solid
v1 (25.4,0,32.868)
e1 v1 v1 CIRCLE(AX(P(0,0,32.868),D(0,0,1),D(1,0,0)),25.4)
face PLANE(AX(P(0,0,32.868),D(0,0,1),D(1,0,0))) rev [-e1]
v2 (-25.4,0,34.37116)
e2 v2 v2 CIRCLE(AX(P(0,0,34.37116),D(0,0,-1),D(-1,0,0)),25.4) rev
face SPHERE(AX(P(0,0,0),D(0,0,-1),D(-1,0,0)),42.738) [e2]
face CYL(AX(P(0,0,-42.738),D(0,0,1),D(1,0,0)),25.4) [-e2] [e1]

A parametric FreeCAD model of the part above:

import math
import FreeCAD as App
import Part
import Sketcher
from FreeCAD import Vector
Q = App.Units.Quantity

doc = App.newDocument("Part")
params = doc.addObject("Spreadsheet::Sheet", "Params")
for row, (alias, value) in enumerate([
    ("revolution_angle", "360 deg"),
    ("sketch2_diameter", "2 in"),
    ("sketch3_diameter", "2 in"),
], start=1):
    params.set(f"A{row}", alias)
    params.set(f"B{row}", "=" + value)
    params.setAlias(f"B{row}", alias)

body = doc.addObject("PartDesign::Body", "Body")

# Sketch on XY plane
sketch1 = body.newObject("Sketcher::SketchObject", "Sketch")
sketch1.AttachmentSupport = (doc.getObject("XY_Plane"), [""])
sketch1.MapMode = "FlatFace"
sketch1.addGeometry([
    Part.LineSegment(Vector(0, -43, 0), Vector(0, 43, 0)),
    Part.ArcOfCircle(Part.Circle(Vector(0, 0, 0), Vector(0, 0, 1), 43), math.radians(90), math.radians(270)),
], False)
sketch1.addConstraint([
    Sketcher.Constraint("Coincident", 0, 1, 1, 2),
    Sketcher.Constraint("Coincident", 1, 1, 0, 2),
    Sketcher.Constraint("Vertical", 0),
    Sketcher.Constraint("Coincident", 1, 3, -1, 1),
    Sketcher.Constraint("PointOnObject", 0, 1, -2),
    Sketcher.Constraint("Radius", 1, Q("42.738 mm")),
])
revolution = body.newObject("PartDesign::Revolution", "Revolution")
revolution.Profile = sketch1
revolution.ReferenceAxis = (sketch1, ["V_Axis"])
revolution.setExpression("Angle", "Params.revolution_angle")

# Sketch on XY plane
sketch2 = body.newObject("Sketcher::SketchObject", "Sketch001")
sketch2.AttachmentSupport = (doc.getObject("XY_Plane"), [""])
sketch2.MapMode = "FlatFace"
sketch2.AttachmentOffset = App.Placement(Vector(0, 0, 42.738), App.Rotation())
sketch2.addGeometry([
    Part.LineSegment(Vector(-59, 59, 0), Vector(-59, -59, 0)),  # 0
    Part.LineSegment(Vector(-59, -59, 0), Vector(59, -59, 0)),  # 1
    Part.LineSegment(Vector(59, -59, 0), Vector(59, 59, 0)),  # 2
    Part.LineSegment(Vector(59, 59, 0), Vector(-59, 59, 0)),  # 3
    Part.Circle(Vector(0, 0, 0), Vector(0, 0, 1), 25),  # 4
], False)
sketch2.addConstraint([
    Sketcher.Constraint("Coincident", 0, 2, 1, 1),
    Sketcher.Constraint("Coincident", 1, 2, 2, 1),
    Sketcher.Constraint("Coincident", 2, 2, 3, 1),
    Sketcher.Constraint("Coincident", 3, 2, 0, 1),
    Sketcher.Constraint("Vertical", 0),
    Sketcher.Constraint("Horizontal", 1),
    Sketcher.Constraint("Vertical", 2),
    Sketcher.Constraint("Horizontal", 3),
    Sketcher.Constraint("Coincident", 4, 3, -1, 1),
    Sketcher.Constraint("Symmetric", 0, 2, 2, 2, -1, 1),
    Sketcher.Constraint("Equal", 3, 0),
    Sketcher.Constraint("Diameter", 4, Q("2 in")),
    Sketcher.Constraint("DistanceX", 1, 1, 1, 2, Q("117.086 mm")),
])
sketch2.setExpression("Constraints[11]", "Params.sketch2_diameter")
pocket1 = body.newObject("PartDesign::Pocket", "Pocket")
pocket1.Profile = sketch2
pocket1.Type = "ThroughAll"

# Sketch on XY plane
sketch3 = body.newObject("Sketcher::SketchObject", "Sketch002")
sketch3.AttachmentSupport = (doc.getObject("XY_Plane"), [""])
sketch3.MapMode = "FlatFace"
sketch3.AttachmentOffset = App.Placement(Vector(0, 0, 32.868), App.Rotation())
sketch3.addGeometry(Part.Circle(Vector(0, 0, 0), Vector(0, 0, 1), 25), False)
sketch3.addConstraint([
    Sketcher.Constraint("Coincident", 0, 3, -1, 1),
    Sketcher.Constraint("Diameter", 0, Q("2 in")),
])
sketch3.setExpression("Constraints[1]", "Params.sketch3_diameter")
pocket2 = body.newObject("PartDesign::Pocket", "Pocket001")
pocket2.Profile = sketch3
pocket2.Type = "ThroughAll"

doc.recompute()
